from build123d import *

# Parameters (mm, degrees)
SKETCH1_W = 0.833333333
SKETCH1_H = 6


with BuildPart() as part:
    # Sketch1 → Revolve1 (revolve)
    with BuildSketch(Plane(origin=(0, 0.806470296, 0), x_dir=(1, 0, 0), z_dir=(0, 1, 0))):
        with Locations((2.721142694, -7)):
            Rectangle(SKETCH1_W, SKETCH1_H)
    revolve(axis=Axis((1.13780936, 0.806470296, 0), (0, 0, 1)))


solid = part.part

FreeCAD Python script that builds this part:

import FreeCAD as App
import Part
import Sketcher

V = App.Vector
Q = App.Units.Quantity


def add_polygon(sketch, points):
    """Adds a closed chain of lines whose ends are joined by coincident constraints."""
    first, n = sketch.GeometryCount, len(points)
    for a, b in zip(points, points[1:] + points[:1]):
        sketch.addGeometry(Part.LineSegment(App.Vector(*a, 0), App.Vector(*b, 0)), False)
    for i in range(n):
        sketch.addConstraint(Sketcher.Constraint("Coincident", first + i, 2, first + (i + 1) % n, 1))

doc = App.newDocument("Part")
body = doc.addObject("PartDesign::Body", "Body")

sketch1 = body.newObject("Sketcher::SketchObject", "Sketch")
sketch1.AttachmentSupport = (doc.getObject("XZ_Plane"), [""])
sketch1.MapMode = "FlatFace"
sketch1.AttachmentOffset = App.Placement(V(0, 0, -0.80647), App.Rotation())
add_polygon(sketch1, [(2.3, 4), (2.3, 10), (3.1, 10), (3.1, 4)])
sketch1.addGeometry(Part.LineSegment(V(1.1, 4, 0), V(1.1, 10, 0)), True)
sketch1.addConstraint(Sketcher.Constraint("Vertical", 0))
sketch1.addConstraint(Sketcher.Constraint("Horizontal", 1))
sketch1.addConstraint(Sketcher.Constraint("Vertical", 2))
sketch1.addConstraint(Sketcher.Constraint("Horizontal", 3))
sketch1.addConstraint(Sketcher.Constraint("Vertical", 4))
sketch1.addConstraint(Sketcher.Constraint("Horizontal", 3, 2, 4, 1))
sketch1.addConstraint(Sketcher.Constraint("Horizontal", 1, 2, 4, 2))
sketch1.addConstraint(Sketcher.Constraint("DistanceY", 0, 1, 0, 2, Q("6 mm")))
sketch1.addConstraint(Sketcher.Constraint("DistanceY", -1, 1, 0, 2, Q("10 mm")))
sketch1.addConstraint(Sketcher.Constraint("DistanceX", 4, 1, 2, 2, Q("2 mm")))
sketch1.addConstraint(Sketcher.Constraint("DistanceX", 1, 1, 1, 2, Q("0.833333 mm")))
sketch1.addConstraint(Sketcher.Constraint("DistanceX", -1, 1, 1, 2, Q("3.137809 mm")))
revolution = body.newObject("PartDesign::Revolution", "Revolution")
revolution.Profile = sketch1
revolution.ReferenceAxis = (sketch1, ["Axis0"])
revolution.Angle = 360

doc.recompute()
